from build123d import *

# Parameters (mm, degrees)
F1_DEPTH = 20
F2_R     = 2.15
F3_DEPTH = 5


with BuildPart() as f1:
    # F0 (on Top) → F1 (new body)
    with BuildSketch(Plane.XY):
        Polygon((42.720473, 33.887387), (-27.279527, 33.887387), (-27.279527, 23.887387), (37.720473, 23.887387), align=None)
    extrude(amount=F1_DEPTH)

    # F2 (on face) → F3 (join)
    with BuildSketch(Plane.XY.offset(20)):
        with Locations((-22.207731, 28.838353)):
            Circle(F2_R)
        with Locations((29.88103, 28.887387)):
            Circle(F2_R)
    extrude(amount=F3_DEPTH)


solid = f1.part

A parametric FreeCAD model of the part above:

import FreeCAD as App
import Part
import Sketcher
Q = App.Units.Quantity

doc = App.newDocument("Part")
params = doc.addObject("Spreadsheet::Sheet", "Params")
for row, (alias, value) in enumerate([
    ("sketch1_width", "70 mm"),
    ("sketch1_width2", "65 mm"),
    ("sketch1_height", "10 mm"),
    ("pad1_length", "20 mm"),
    ("sketch2_diameter", "4.3 mm"),
    ("pad2_length", "5 mm"),
], start=1):
    params.set(f"A{row}", alias)
    params.set(f"B{row}", "=" + value)
    params.setAlias(f"B{row}", alias)

body = doc.addObject("PartDesign::Body", "Body")

# Sketch on XY plane
sketch1 = body.newObject("Sketcher::SketchObject", "Sketch")
sketch1.AttachmentSupport = (doc.getObject("XY_Plane"), [""])
sketch1.MapMode = "FlatFace"
sketch1.addGeometry(Part.LineSegment(App.Vector(43, 34, 0), App.Vector(-27, 34, 0)), False)
sketch1.addGeometry(Part.LineSegment(App.Vector(-27, 34, 0), App.Vector(-27, 24, 0)), False)
sketch1.addGeometry(Part.LineSegment(App.Vector(-27, 24, 0), App.Vector(38, 24, 0)), False)
sketch1.addGeometry(Part.LineSegment(App.Vector(38, 24, 0), App.Vector(43, 34, 0)), False)
sketch1.addConstraint(Sketcher.Constraint("Coincident", 0, 2, 1, 1))
sketch1.addConstraint(Sketcher.Constraint("Coincident", 1, 2, 2, 1))
sketch1.addConstraint(Sketcher.Constraint("Coincident", 2, 2, 3, 1))
sketch1.addConstraint(Sketcher.Constraint("Coincident", 3, 2, 0, 1))
sketch1.addConstraint(Sketcher.Constraint("Horizontal", 0))
sketch1.addConstraint(Sketcher.Constraint("Vertical", 1))
sketch1.addConstraint(Sketcher.Constraint("Horizontal", 2))
sketch1.addConstraint(Sketcher.Constraint("DistanceX", 0, 2, 0, 1, Q("70 mm")))
sketch1.addConstraint(Sketcher.Constraint("DistanceX", 2, 1, 2, 2, Q("65 mm")))
sketch1.addConstraint(Sketcher.Constraint("DistanceY", 1, 2, 1, 1, Q("10 mm")))
sketch1.addConstraint(Sketcher.Constraint("DistanceX", 0, 2, -1, 1, Q("27.279527 mm")))
sketch1.addConstraint(Sketcher.Constraint("DistanceY", -1, 1, 0, 2, Q("33.887387 mm")))
sketch1.setExpression("Constraints[7]", "Params.sketch1_width")
sketch1.setExpression("Constraints[8]", "Params.sketch1_width2")
sketch1.setExpression("Constraints[9]", "Params.sketch1_height")
pad1 = body.newObject("PartDesign::Pad", "Pad")
pad1.Profile = sketch1
pad1.setExpression("Length", "Params.pad1_length")

# Sketch on XY plane
sketch2 = body.newObject("Sketcher::SketchObject", "Sketch001")
sketch2.AttachmentSupport = (doc.getObject("XY_Plane"), [""])
sketch2.MapMode = "FlatFace"
sketch2.AttachmentOffset = App.Placement(App.Vector(0, 0, 20), App.Rotation())
sketch2.addGeometry(Part.Circle(App.Vector(-22.2, 28.8, 0), App.Vector(0, 0, 1), 2.1), False)
sketch2.addGeometry(Part.Circle(App.Vector(29.9, 28.9, 0), App.Vector(0, 0, 1), 2.1), False)
sketch2.addConstraint(Sketcher.Constraint("Equal", 0, 1))
sketch2.addConstraint(Sketcher.Constraint("Diameter", 0, Q("4.3 mm")))
sketch2.addConstraint(Sketcher.Constraint("DistanceX", 0, 3, -1, 1, Q("22.207731 mm")))
sketch2.addConstraint(Sketcher.Constraint("DistanceX", -1, 1, 1, 3, Q("29.88103 mm")))
sketch2.addConstraint(Sketcher.Constraint("DistanceY", -1, 1, 0, 3, Q("28.838353 mm")))
sketch2.addConstraint(Sketcher.Constraint("DistanceY", -1, 1, 1, 3, Q("28.887387 mm")))
sketch2.setExpression("Constraints[1]", "Params.sketch2_diameter")
pad2 = body.newObject("PartDesign::Pad", "Pad001")
pad2.Profile = sketch2
pad2.setExpression("Length", "Params.pad2_length")

doc.recompute()
